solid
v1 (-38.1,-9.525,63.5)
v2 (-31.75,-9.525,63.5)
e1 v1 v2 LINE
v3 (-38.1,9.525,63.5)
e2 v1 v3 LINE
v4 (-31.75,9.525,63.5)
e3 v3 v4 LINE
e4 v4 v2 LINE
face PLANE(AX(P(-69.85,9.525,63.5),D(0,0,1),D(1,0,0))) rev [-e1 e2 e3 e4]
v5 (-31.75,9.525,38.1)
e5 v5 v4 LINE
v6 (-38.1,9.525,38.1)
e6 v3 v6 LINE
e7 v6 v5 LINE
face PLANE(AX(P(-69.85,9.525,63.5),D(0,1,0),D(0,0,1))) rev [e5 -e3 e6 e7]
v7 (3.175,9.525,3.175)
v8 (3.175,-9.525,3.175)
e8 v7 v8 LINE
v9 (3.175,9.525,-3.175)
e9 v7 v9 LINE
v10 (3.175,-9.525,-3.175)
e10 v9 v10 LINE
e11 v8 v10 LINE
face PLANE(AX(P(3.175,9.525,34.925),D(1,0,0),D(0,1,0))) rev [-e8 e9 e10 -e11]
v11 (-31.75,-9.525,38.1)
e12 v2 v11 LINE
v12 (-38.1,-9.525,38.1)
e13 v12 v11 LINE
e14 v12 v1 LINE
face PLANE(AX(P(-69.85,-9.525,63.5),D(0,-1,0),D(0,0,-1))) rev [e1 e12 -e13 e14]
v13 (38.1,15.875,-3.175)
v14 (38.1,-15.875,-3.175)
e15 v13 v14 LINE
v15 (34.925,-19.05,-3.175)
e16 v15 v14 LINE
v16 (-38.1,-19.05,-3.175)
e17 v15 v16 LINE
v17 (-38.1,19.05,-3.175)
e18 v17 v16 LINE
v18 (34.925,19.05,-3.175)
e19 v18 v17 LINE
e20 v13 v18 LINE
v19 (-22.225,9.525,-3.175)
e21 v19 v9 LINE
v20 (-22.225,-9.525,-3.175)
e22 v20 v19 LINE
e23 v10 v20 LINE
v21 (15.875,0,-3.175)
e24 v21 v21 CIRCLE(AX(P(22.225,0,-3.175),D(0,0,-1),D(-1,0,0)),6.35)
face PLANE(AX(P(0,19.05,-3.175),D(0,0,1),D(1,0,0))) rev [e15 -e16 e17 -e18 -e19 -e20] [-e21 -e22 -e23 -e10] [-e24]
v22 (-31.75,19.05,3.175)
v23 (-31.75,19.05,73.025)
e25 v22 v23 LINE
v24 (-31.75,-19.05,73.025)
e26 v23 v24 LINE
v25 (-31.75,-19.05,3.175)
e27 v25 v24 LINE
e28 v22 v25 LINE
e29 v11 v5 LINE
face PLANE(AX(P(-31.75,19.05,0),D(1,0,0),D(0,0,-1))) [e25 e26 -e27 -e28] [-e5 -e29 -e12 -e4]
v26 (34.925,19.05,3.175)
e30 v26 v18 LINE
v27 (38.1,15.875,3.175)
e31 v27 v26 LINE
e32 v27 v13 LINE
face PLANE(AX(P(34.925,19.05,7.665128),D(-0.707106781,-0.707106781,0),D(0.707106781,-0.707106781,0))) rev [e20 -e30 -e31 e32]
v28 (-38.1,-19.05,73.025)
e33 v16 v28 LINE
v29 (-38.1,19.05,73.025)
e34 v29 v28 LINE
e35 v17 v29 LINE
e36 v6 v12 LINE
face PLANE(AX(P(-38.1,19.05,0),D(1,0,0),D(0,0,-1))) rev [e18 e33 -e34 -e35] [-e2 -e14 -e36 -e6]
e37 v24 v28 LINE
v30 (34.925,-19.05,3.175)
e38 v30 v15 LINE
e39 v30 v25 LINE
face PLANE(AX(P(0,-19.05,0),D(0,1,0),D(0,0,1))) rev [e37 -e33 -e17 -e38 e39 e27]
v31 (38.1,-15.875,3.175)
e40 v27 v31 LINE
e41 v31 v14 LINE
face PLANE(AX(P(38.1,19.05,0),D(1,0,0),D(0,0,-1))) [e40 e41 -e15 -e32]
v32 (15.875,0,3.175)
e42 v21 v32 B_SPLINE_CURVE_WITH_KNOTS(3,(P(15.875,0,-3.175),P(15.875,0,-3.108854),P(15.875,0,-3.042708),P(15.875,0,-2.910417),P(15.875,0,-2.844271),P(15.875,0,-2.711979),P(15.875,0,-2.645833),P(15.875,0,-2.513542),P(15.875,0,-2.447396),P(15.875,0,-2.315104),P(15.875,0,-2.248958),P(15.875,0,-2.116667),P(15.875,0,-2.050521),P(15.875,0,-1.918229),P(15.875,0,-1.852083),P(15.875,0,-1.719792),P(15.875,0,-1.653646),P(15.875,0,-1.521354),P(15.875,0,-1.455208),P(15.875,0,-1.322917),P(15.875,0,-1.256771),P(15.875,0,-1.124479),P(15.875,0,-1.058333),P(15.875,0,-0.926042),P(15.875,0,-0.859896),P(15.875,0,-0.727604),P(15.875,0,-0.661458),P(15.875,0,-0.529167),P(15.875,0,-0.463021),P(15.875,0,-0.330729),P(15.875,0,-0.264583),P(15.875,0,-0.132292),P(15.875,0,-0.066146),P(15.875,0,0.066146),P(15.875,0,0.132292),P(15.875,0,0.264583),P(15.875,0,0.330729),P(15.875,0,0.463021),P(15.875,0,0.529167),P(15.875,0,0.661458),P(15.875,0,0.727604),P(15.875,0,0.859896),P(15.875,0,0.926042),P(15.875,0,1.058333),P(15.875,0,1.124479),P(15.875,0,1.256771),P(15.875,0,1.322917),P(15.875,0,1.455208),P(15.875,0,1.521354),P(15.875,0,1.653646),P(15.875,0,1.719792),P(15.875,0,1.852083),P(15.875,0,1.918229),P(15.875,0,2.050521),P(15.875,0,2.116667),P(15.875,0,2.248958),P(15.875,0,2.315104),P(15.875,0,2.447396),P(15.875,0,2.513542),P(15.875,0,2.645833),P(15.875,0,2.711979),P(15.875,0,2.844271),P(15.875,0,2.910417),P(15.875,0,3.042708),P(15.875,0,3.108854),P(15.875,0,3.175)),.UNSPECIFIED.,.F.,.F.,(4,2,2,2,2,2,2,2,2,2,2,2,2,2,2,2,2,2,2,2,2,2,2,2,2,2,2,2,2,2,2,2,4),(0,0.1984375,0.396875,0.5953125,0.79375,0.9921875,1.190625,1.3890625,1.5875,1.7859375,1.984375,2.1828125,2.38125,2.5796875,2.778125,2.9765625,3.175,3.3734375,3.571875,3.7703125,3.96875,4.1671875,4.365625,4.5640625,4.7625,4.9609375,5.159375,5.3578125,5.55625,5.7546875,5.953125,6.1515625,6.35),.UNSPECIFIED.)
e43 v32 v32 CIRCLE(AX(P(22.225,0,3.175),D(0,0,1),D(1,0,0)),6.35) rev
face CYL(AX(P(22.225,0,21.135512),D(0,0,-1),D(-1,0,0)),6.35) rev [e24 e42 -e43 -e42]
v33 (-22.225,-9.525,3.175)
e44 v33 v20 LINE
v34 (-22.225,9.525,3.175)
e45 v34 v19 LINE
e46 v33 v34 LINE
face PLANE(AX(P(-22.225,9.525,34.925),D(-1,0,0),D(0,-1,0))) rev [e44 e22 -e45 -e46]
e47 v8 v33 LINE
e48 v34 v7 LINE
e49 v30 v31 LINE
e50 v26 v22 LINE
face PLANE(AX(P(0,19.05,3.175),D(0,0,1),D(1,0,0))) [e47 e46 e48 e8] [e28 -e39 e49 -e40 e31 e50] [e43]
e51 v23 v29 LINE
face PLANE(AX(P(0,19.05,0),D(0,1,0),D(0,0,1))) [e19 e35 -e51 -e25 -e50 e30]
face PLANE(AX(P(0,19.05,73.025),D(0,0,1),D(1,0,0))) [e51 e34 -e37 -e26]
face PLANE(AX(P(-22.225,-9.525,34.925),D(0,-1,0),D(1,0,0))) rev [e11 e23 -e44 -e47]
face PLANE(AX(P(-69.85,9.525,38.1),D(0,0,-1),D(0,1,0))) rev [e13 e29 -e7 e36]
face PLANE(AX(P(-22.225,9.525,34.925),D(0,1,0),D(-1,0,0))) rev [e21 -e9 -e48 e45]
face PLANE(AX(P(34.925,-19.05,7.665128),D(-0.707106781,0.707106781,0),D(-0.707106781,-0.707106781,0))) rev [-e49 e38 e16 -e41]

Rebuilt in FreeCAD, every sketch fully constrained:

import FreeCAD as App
import Part
import Sketcher
from FreeCAD import Vector
Q = App.Units.Quantity

doc = App.newDocument("Part")
body = doc.addObject("PartDesign::Body", "Body")

# Sketch on XZ plane
sketch1 = body.newObject("Sketcher::SketchObject", "Sketch")
sketch1.AttachmentSupport = (doc.getObject("XZ_Plane"), [""])
sketch1.MapMode = "FlatFace"
sketch1.addGeometry([
    Part.LineSegment(Vector(-38.1, 73.025, 0), Vector(-31.75, 73.025, 0)),  # 0
    Part.LineSegment(Vector(-31.75, 73.025, 0), Vector(-31.75, 3.175, 0)),  # 1
    Part.LineSegment(Vector(-31.75, 3.175, 0), Vector(38.1, 3.175, 0)),  # 2
    Part.LineSegment(Vector(38.1, 3.175, 0), Vector(38.1, -3.175, 0)),  # 3
    Part.LineSegment(Vector(38.1, -3.175, 0), Vector(-38.1, -3.175, 0)),  # 4
    Part.LineSegment(Vector(-38.1, -3.175, 0), Vector(-38.1, 73.025, 0)),  # 5
], False)
sketch1.addConstraint([
    Sketcher.Constraint("Coincident", 0, 2, 1, 1),
    Sketcher.Constraint("Coincident", 1, 2, 2, 1),
    Sketcher.Constraint("Coincident", 2, 2, 3, 1),
    Sketcher.Constraint("Coincident", 3, 2, 4, 1),
    Sketcher.Constraint("Coincident", 4, 2, 5, 1),
    Sketcher.Constraint("Coincident", 5, 2, 0, 1),
    Sketcher.Constraint("Horizontal", 0),
    Sketcher.Constraint("Vertical", 1),
    Sketcher.Constraint("Horizontal", 2),
    Sketcher.Constraint("Vertical", 3),
    Sketcher.Constraint("Horizontal", 4),
    Sketcher.Constraint("Vertical", 5),
    Sketcher.Constraint("Symmetric", 2, 2, 4, 2, -1, 1),
    Sketcher.Constraint("Equal", 2, 1),
    Sketcher.Constraint("Equal", 0, 3),
    Sketcher.Constraint("DistanceX", 4, 2, 4, 1, Q("3 in")),
    Sketcher.Constraint("DistanceX", 0, 1, 0, 2, Q("0.25 in")),
])
pad1 = body.newObject("PartDesign::Pad", "Pad")
pad1.Profile = sketch1
pad1.Length = Q("1.5 in")
pad1.Midplane = True

# Sketch on XY plane
sketch2 = body.newObject("Sketcher::SketchObject", "Sketch001")
sketch2.AttachmentSupport = (doc.getObject("XY_Plane"), [""])
sketch2.MapMode = "FlatFace"
sketch2.AttachmentOffset = App.Placement(Vector(0, 0, -0.125 * 25.4), App.Rotation())
sketch2.addGeometry(Part.Circle(Vector(22.225, 0, 0), Vector(0, 0, 1), 6.35), False)
sketch2.addConstraint([
    Sketcher.Constraint("PointOnObject", 0, 3, -1),
    Sketcher.Constraint("Diameter", 0, Q("0.5 in")),
    Sketcher.Constraint("DistanceX", -1, 1, 0, 3, Q("0.875 in")),
])
pocket1 = body.newObject("PartDesign::Pocket", "Pocket")
pocket1.Profile = sketch2
pocket1.Length = Q("0.25 in")
pocket1.Reversed = True

# Sketch on XY plane
sketch3 = body.newObject("Sketcher::SketchObject", "Sketch002")
sketch3.AttachmentSupport = (doc.getObject("XY_Plane"), [""])
sketch3.MapMode = "FlatFace"
sketch3.AttachmentOffset = App.Placement(Vector(0, 0, -0.125 * 25.4), App.Rotation())
sketch3.addGeometry([
    Part.LineSegment(Vector(3.175, 9.525, 0), Vector(3.175, -9.525, 0)),
    Part.LineSegment(Vector(3.175, -9.525, 0), Vector(-22.225, -9.525, 0)),
    Part.LineSegment(Vector(-22.225, -9.525, 0), Vector(-22.225, 9.525, 0)),
    Part.LineSegment(Vector(-22.225, 9.525, 0), Vector(3.175, 9.525, 0)),
], False)
sketch3.addConstraint([
    Sketcher.Constraint("Coincident", 0, 2, 1, 1),
    Sketcher.Constraint("Coincident", 1, 2, 2, 1),
    Sketcher.Constraint("Coincident", 2, 2, 3, 1),
    Sketcher.Constraint("Coincident", 3, 2, 0, 1),
    Sketcher.Constraint("Vertical", 0),
    Sketcher.Constraint("Horizontal", 1),
    Sketcher.Constraint("Vertical", 2),
    Sketcher.Constraint("Horizontal", 3),
    Sketcher.Constraint("DistanceX", 1, 2, 1, 1, Q("1 in")),
    Sketcher.Constraint("DistanceY", 0, 2, 0, 1, Q("0.75 in")),
    Sketcher.Constraint("DistanceX", -1, 1, 0, 2, Q("0.125 in")),
    Sketcher.Constraint("DistanceY", 0, 2, -1, 1, Q("0.375 in")),
])
pocket2 = body.newObject("PartDesign::Pocket", "Pocket001")
pocket2.Profile = sketch3
pocket2.Length = Q("0.25 in")
pocket2.Reversed = True

# Sketch on XY plane
sketch4 = body.newObject("Sketcher::SketchObject", "Sketch003")
sketch4.AttachmentSupport = (doc.getObject("XY_Plane"), [""])
sketch4.MapMode = "FlatFace"
sketch4.AttachmentOffset = App.Placement(Vector(0, 0, -0.125 * 25.4), App.Rotation())
sketch4.addGeometry([
    Part.LineSegment(Vector(38.1, 15.875, 0), Vector(34.925, 19.05, 0)),  # 0
    Part.LineSegment(Vector(34.925, 19.05, 0), Vector(38.1, 19.05, 0)),  # 1
    Part.LineSegment(Vector(38.1, 19.05, 0), Vector(38.1, 15.875, 0)),  # 2
    Part.LineSegment(Vector(34.925, -19.05, 0), Vector(38.1, -15.875, 0)),  # 3
    Part.LineSegment(Vector(38.1, -15.875, 0), Vector(38.1, -19.05, 0)),  # 4
    Part.LineSegment(Vector(38.1, -19.05, 0), Vector(34.925, -19.05, 0)),  # 5
], False)
sketch4.addConstraint([
    Sketcher.Constraint("Coincident", 0, 2, 1, 1),
    Sketcher.Constraint("Coincident", 1, 2, 2, 1),
    Sketcher.Constraint("Coincident", 2, 2, 0, 1),
    Sketcher.Constraint("Coincident", 3, 2, 4, 1),
    Sketcher.Constraint("Coincident", 4, 2, 5, 1),
    Sketcher.Constraint("Coincident", 5, 2, 3, 1),
    Sketcher.Constraint("Horizontal", 1),
    Sketcher.Constraint("Vertical", 2),
    Sketcher.Constraint("Vertical", 4),
    Sketcher.Constraint("Horizontal", 5),
    Sketcher.Constraint("Symmetric", 2, 2, 3, 2, -1),
    Sketcher.Constraint("Symmetric", 0, 2, 5, 2, -1),
    Sketcher.Constraint("Perpendicular", 0, 3),
    Sketcher.Constraint("DistanceX", -1, 1, 1, 2, Q("1.5 in")),
    Sketcher.Constraint("DistanceY", 4, 2, 1, 2, Q("1.5 in")),
    Sketcher.Constraint("DistanceX", 1, 1, 1, 2, Q("0.125 in")),
])
pocket3 = body.newObject("PartDesign::Pocket", "Pocket002")
pocket3.Profile = sketch4
pocket3.Length = Q("0.25 in")
pocket3.Reversed = True

# Sketch on YZ plane
sketch5 = body.newObject("Sketcher::SketchObject", "Sketch004")
sketch5.AttachmentSupport = (doc.getObject("YZ_Plane"), [""])
sketch5.MapMode = "FlatFace"
sketch5.AttachmentOffset = App.Placement(Vector(0, 0, -1.25 * 25.4), App.Rotation())
sketch5.addGeometry([
    Part.LineSegment(Vector(9.525, 63.5, 0), Vector(-9.525, 63.5, 0)),
    Part.LineSegment(Vector(-9.525, 63.5, 0), Vector(-9.525, 38.1, 0)),
    Part.LineSegment(Vector(-9.525, 38.1, 0), Vector(9.525, 38.1, 0)),
    Part.LineSegment(Vector(9.525, 38.1, 0), Vector(9.525, 63.5, 0)),
], False)
sketch5.addConstraint([
    Sketcher.Constraint("Coincident", 0, 2, 1, 1),
    Sketcher.Constraint("Coincident", 1, 2, 2, 1),
    Sketcher.Constraint("Coincident", 2, 2, 3, 1),
    Sketcher.Constraint("Coincident", 3, 2, 0, 1),
    Sketcher.Constraint("Horizontal", 0),
    Sketcher.Constraint("Vertical", 1),
    Sketcher.Constraint("Horizontal", 2),
    Sketcher.Constraint("Vertical", 3),
    Sketcher.Constraint("DistanceY", 1, 2, 1, 1, Q("1 in")),
    Sketcher.Constraint("DistanceX", 0, 2, 0, 1, Q("0.75 in")),
    Sketcher.Constraint("DistanceY", -1, 1, 0, 2, Q("2.5 in")),
    Sketcher.Constraint("DistanceX", 0, 2, -1, 1, Q("0.375 in")),
])
pocket4 = body.newObject("PartDesign::Pocket", "Pocket003")
pocket4.Profile = sketch5
pocket4.Length = Q("0.25 in")

doc.recompute()
